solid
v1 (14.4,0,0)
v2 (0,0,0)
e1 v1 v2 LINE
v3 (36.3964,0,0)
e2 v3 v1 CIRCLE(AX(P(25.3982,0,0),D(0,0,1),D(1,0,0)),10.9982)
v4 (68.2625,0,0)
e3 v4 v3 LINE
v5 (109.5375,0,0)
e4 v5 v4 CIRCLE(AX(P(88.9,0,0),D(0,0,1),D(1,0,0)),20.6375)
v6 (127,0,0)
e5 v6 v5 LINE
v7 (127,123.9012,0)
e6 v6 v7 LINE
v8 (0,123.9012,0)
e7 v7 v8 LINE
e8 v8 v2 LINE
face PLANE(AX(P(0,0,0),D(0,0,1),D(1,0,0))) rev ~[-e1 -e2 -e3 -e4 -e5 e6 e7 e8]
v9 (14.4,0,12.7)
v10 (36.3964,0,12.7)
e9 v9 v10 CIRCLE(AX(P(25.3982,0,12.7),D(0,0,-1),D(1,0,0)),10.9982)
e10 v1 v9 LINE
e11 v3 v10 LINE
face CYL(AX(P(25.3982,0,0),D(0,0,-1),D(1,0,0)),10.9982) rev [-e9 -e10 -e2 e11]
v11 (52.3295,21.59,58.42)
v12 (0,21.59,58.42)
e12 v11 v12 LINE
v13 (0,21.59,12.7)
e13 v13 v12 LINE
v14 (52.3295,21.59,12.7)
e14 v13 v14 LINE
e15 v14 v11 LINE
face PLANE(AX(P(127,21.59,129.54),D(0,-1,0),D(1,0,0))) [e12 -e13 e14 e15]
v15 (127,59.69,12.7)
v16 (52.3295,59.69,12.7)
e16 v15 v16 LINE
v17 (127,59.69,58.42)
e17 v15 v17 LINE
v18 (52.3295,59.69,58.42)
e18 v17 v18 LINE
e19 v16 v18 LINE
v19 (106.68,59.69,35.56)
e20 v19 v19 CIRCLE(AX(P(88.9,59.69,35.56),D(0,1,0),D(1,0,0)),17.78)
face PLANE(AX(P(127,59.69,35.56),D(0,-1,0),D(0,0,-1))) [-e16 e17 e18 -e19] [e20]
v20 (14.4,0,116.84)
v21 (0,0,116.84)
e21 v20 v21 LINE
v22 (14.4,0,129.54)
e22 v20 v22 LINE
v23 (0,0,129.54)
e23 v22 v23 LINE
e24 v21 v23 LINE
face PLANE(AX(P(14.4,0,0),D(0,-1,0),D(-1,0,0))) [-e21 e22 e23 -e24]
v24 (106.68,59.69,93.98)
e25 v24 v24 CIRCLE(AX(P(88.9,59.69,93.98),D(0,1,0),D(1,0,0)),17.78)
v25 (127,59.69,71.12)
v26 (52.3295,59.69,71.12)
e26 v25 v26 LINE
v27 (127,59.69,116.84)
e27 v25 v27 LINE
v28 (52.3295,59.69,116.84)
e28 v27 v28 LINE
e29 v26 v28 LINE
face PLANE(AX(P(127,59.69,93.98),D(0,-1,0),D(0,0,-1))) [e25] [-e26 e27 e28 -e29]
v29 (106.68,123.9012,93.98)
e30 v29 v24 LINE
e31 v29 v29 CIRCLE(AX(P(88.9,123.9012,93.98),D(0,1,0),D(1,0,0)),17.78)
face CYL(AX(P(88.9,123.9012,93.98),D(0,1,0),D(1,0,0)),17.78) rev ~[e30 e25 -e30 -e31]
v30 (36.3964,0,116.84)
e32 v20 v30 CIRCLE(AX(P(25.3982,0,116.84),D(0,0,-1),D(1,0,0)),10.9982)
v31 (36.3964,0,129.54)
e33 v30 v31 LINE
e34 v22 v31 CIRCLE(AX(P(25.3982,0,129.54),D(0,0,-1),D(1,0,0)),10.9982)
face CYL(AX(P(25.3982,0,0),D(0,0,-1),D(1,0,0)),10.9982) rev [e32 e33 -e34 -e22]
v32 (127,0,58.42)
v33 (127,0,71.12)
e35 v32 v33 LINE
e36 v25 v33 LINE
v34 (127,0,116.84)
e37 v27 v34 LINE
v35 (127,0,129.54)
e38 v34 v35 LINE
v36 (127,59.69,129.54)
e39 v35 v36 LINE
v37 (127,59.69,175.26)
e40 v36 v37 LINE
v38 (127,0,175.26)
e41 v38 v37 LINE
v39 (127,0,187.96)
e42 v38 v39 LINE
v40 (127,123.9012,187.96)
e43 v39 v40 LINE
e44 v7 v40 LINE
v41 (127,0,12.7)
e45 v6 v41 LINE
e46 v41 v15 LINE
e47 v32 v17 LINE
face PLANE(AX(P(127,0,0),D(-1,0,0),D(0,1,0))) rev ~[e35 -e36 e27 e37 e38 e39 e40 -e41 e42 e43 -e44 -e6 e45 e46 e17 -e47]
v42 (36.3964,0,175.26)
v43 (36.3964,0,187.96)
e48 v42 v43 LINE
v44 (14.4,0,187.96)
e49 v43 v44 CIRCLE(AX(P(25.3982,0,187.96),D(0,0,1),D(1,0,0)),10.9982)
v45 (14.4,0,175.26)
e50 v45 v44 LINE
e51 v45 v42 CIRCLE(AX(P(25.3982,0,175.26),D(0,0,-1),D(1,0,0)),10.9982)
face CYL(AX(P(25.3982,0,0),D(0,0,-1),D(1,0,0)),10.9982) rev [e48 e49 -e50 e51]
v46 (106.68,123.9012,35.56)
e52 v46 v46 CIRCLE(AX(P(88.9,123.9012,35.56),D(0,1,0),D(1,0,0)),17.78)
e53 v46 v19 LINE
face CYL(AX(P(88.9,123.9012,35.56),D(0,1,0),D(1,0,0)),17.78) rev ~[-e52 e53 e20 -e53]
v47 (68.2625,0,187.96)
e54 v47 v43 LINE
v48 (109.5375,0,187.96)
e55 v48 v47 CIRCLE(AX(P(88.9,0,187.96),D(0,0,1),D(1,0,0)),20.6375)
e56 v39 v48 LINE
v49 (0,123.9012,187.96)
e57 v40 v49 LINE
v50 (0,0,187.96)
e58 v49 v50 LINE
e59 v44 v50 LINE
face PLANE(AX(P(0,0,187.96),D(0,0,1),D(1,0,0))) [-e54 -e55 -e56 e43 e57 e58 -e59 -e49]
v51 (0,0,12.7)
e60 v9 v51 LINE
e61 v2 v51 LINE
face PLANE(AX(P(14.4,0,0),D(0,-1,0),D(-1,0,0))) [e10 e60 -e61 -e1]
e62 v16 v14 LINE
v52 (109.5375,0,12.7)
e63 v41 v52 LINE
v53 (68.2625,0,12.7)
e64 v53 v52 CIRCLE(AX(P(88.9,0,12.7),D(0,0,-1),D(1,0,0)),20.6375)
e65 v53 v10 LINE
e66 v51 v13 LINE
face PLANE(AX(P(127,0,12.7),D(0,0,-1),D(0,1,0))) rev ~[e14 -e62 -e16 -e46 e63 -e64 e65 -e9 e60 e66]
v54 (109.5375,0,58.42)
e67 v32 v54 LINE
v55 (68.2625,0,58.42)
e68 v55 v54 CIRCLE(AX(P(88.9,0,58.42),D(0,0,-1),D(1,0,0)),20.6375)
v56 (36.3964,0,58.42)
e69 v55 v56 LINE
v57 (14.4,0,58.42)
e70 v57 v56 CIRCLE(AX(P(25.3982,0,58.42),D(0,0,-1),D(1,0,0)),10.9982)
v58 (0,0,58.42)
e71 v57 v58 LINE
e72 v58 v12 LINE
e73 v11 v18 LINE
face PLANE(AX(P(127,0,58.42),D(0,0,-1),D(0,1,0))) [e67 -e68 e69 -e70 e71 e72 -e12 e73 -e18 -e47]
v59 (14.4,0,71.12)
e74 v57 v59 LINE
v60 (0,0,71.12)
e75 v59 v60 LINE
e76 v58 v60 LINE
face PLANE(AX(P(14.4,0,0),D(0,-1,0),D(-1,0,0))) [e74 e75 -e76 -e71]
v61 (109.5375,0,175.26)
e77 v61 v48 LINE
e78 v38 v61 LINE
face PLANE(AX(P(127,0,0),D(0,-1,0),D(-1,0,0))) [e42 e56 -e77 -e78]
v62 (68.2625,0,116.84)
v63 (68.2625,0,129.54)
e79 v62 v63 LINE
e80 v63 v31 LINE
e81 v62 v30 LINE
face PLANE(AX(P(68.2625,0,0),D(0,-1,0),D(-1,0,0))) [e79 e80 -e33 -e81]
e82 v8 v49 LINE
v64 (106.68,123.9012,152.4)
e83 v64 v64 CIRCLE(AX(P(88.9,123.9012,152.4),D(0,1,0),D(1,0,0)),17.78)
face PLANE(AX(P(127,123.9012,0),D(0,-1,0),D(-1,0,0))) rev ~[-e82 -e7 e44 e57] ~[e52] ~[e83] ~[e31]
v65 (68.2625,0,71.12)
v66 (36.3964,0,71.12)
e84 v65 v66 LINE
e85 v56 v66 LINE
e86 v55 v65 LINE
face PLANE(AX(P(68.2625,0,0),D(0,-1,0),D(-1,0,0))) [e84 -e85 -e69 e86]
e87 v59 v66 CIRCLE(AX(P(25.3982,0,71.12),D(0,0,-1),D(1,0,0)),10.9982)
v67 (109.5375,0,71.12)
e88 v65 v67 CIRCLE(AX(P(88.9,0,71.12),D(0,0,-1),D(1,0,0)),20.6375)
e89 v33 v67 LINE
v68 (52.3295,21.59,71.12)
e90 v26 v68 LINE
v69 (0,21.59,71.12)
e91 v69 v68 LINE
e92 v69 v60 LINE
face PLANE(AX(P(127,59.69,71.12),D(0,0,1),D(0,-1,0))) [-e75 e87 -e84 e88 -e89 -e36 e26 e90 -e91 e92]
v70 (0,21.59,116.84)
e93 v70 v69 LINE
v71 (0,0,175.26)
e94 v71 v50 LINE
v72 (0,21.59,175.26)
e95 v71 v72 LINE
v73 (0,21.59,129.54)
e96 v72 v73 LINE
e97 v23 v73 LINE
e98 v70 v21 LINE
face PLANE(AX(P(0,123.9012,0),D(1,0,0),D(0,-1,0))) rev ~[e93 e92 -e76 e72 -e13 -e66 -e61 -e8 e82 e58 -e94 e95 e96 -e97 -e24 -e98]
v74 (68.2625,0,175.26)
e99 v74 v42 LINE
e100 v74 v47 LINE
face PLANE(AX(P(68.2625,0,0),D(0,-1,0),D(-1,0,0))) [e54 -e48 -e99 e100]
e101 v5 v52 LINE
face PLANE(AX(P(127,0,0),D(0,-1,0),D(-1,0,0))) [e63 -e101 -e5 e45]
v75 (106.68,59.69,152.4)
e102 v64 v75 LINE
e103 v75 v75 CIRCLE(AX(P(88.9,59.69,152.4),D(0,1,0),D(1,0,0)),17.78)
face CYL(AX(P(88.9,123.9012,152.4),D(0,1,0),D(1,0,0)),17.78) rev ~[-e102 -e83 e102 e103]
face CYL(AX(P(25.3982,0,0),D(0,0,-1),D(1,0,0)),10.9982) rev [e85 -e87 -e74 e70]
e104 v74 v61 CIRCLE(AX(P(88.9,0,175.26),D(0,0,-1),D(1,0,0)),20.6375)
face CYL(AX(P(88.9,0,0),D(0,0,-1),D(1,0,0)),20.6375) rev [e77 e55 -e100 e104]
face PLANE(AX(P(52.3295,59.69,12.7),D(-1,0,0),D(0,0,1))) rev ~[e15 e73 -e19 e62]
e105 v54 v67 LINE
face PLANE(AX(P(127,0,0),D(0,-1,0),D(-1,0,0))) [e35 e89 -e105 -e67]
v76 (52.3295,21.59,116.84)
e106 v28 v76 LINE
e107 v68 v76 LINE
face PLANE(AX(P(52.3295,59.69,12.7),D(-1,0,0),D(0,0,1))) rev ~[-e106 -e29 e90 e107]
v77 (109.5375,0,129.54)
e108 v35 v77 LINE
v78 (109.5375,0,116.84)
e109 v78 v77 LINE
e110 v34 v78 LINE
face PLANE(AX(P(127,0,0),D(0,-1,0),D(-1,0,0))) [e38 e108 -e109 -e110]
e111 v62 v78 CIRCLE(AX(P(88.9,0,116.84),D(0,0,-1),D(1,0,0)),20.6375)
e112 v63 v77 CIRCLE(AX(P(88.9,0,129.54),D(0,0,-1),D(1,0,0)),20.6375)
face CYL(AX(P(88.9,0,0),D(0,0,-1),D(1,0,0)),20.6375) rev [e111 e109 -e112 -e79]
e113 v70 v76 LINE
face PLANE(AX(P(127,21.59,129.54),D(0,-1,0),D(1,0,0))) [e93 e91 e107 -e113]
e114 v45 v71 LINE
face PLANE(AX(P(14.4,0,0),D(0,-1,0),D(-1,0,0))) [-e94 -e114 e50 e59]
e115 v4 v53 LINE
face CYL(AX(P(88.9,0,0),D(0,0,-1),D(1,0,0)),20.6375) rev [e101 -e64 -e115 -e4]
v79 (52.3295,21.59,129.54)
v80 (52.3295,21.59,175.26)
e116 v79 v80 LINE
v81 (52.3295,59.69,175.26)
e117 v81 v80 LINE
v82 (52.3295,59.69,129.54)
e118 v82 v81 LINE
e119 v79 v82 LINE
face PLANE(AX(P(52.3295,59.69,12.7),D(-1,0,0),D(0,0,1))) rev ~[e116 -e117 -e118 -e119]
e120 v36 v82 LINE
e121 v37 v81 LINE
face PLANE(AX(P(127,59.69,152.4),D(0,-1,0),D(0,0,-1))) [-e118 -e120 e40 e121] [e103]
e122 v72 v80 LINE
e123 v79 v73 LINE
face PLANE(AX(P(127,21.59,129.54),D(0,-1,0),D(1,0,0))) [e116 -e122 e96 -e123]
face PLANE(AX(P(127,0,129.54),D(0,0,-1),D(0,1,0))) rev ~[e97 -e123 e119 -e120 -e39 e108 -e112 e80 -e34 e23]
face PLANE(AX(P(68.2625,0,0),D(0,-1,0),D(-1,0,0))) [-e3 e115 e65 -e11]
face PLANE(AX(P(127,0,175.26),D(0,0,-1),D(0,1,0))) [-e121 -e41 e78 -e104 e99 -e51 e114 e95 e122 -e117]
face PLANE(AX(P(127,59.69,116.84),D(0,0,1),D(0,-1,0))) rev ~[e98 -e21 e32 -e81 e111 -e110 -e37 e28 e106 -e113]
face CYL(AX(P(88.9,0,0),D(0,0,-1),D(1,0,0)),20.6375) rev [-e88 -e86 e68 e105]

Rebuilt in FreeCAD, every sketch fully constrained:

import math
import FreeCAD as App
import Part
import Sketcher
Q = App.Units.Quantity


def add_polygon(sketch, points):
    """Adds a closed chain of lines whose ends are joined by coincident constraints."""
    first, n = sketch.GeometryCount, len(points)
    for a, b in zip(points, points[1:] + points[:1]):
        sketch.addGeometry(Part.LineSegment(App.Vector(*a, 0), App.Vector(*b, 0)), False)
    for i in range(n):
        sketch.addConstraint(Sketcher.Constraint("Coincident", first + i, 2, first + (i + 1) % n, 1))

doc = App.newDocument("Part")
body = doc.addObject("PartDesign::Body", "Body")

# Sketch on XY plane
sketch1 = body.newObject("Sketcher::SketchObject", "Sketch")
sketch1.AttachmentSupport = (doc.getObject("XY_Plane"), [""])
sketch1.MapMode = "FlatFace"
sketch1.addGeometry([
    Part.LineSegment(App.Vector(110, 0, 0), App.Vector(127, 0, 0)),  # 0
    Part.LineSegment(App.Vector(127, 0, 0), App.Vector(127, 124, 0)),  # 1
    Part.LineSegment(App.Vector(127, 124, 0), App.Vector(0, 124, 0)),  # 2
    Part.LineSegment(App.Vector(0, 124, 0), App.Vector(0, 0, 0)),  # 3
    Part.LineSegment(App.Vector(0, 0, 0), App.Vector(14, 0, 0)),  # 4
    Part.ArcOfCircle(Part.Circle(App.Vector(25, 0, 0), App.Vector(0, 0, 1), 11), math.radians(0), math.radians(180)),  # 5
    Part.LineSegment(App.Vector(36, 0, 0), App.Vector(68, 0, 0)),  # 6
    Part.ArcOfCircle(Part.Circle(App.Vector(89, 0, 0), App.Vector(0, 0, 1), 21), math.radians(0), math.radians(180)),  # 7
], False)
sketch1.addConstraint([
    Sketcher.Constraint("Coincident", 0, 2, 1, 1),
    Sketcher.Constraint("Coincident", 1, 2, 2, 1),
    Sketcher.Constraint("Coincident", 2, 2, 3, 1),
    Sketcher.Constraint("Coincident", 3, 2, 4, 1),
    Sketcher.Constraint("Coincident", 4, 2, 5, 2),
    Sketcher.Constraint("Coincident", 5, 1, 6, 1),
    Sketcher.Constraint("Coincident", 6, 2, 7, 2),
    Sketcher.Constraint("Coincident", 7, 1, 0, 1),
    Sketcher.Constraint("Horizontal", 0),
    Sketcher.Constraint("Vertical", 1),
    Sketcher.Constraint("Horizontal", 2),
    Sketcher.Constraint("Vertical", 3),
    Sketcher.Constraint("Horizontal", 4),
    Sketcher.Constraint("Horizontal", 6),
    Sketcher.Constraint("Coincident", 3, 2, -1, 1),
    Sketcher.Constraint("PointOnObject", 5, 3, -1),
    Sketcher.Constraint("PointOnObject", 7, 3, -1),
    Sketcher.Constraint("PointOnObject", 0, 2, -1),
    Sketcher.Constraint("PointOnObject", 5, 1, -1),
    Sketcher.Constraint("DistanceX", 2, 2, 2, 1, Q("5 in")),
    Sketcher.Constraint("Radius", 5, Q("0.433 in")),
    Sketcher.Constraint("Radius", 7, Q("0.8125 in")),
    Sketcher.Constraint("DistanceX", 7, 3, 0, 2, Q("1.5 in")),
    Sketcher.Constraint("DistanceY", 1, 1, 1, 2, Q("4.878 in")),
    Sketcher.Constraint("DistanceX", 4, 1, 4, 2, Q("14.4 mm")),
])
pad1 = body.newObject("PartDesign::Pad", "Pad")
pad1.Profile = sketch1
pad1.Length = Q("7.4 in")

# Sketch on YZ plane
sketch2 = body.newObject("Sketcher::SketchObject", "Sketch001")
sketch2.AttachmentSupport = (doc.getObject("YZ_Plane"), [""])
sketch2.MapMode = "FlatFace"
sketch2.AttachmentOffset = App.Placement(App.Vector(0, 0, 5 * 25.4), App.Rotation())
add_polygon(sketch2, [(0, 13), (60, 13), (60, 58), (0, 58)])  # lines 0-3
add_polygon(sketch2, [(0, 71), (60, 71), (60, 117), (0, 117)])  # lines 4-7
add_polygon(sketch2, [(0, 130), (60, 130), (60, 175), (0, 175)])  # lines 8-11
sketch2.addConstraint([
    Sketcher.Constraint("Horizontal", 0),
    Sketcher.Constraint("Vertical", 1),
    Sketcher.Constraint("Horizontal", 2),
    Sketcher.Constraint("Vertical", 3),
    Sketcher.Constraint("Horizontal", 4),
    Sketcher.Constraint("Vertical", 5),
    Sketcher.Constraint("Horizontal", 6),
    Sketcher.Constraint("Vertical", 7),
    Sketcher.Constraint("Horizontal", 8),
    Sketcher.Constraint("Vertical", 9),
    Sketcher.Constraint("Horizontal", 10),
    Sketcher.Constraint("Vertical", 11),
    Sketcher.Constraint("PointOnObject", 2, 2, -2),
    Sketcher.Constraint("PointOnObject", 6, 2, -2),
    Sketcher.Constraint("PointOnObject", 10, 2, -2),
    Sketcher.Constraint("Vertical", 1, 2, 4, 2),
    Sketcher.Constraint("Vertical", 5, 2, 8, 2),
    Sketcher.Constraint("Equal", 3, 5),
    Sketcher.Constraint("Equal", 7, 9),
    Sketcher.Constraint("DistanceY", -1, 1, 0, 2, Q("0.5 in")),
    Sketcher.Constraint("DistanceY", 1, 2, 4, 2, Q("0.5 in")),
    Sketcher.Constraint("DistanceY", 5, 2, 8, 2, Q("0.5 in")),
    Sketcher.Constraint("DistanceY", 1, 1, 1, 2, Q("1.8 in")),
    Sketcher.Constraint("DistanceX", 0, 1, 0, 2, Q("2.35 in")),
])
pocket1 = body.newObject("PartDesign::Pocket", "Pocket")
pocket1.Profile = sketch2
pocket1.Length = Q("7.4 in")

# Sketch on XZ plane
sketch3 = body.newObject("Sketcher::SketchObject", "Sketch002")
sketch3.AttachmentSupport = (doc.getObject("XZ_Plane"), [""])
sketch3.MapMode = "FlatFace"
sketch3.AttachmentOffset = App.Placement(App.Vector(0, 0, -4.878 * 25.4), App.Rotation())
sketch3.addGeometry([
    Part.Circle(App.Vector(89, 152, 0), App.Vector(0, 0, 1), 18),
    Part.Circle(App.Vector(89, 94, 0), App.Vector(0, 0, 1), 18),
    Part.Circle(App.Vector(89, 36, 0), App.Vector(0, 0, 1), 18),
], False)
sketch3.addConstraint([
    Sketcher.Constraint("Equal", 0, 1),
    Sketcher.Constraint("Equal", 1, 2),
    Sketcher.Constraint("Vertical", 0, 3, 1, 3),
    Sketcher.Constraint("Vertical", 1, 3, 2, 3),
    Sketcher.Constraint("Diameter", 0, Q("1.4 in")),
    Sketcher.Constraint("DistanceY", -1, 1, 2, 3, Q("1.4 in")),
    Sketcher.Constraint("DistanceY", 1, 3, 0, 3, Q("2.3 in")),
    Sketcher.Constraint("DistanceY", 2, 3, 1, 3, Q("2.3 in")),
    Sketcher.Constraint("DistanceX", -1, 1, 0, 3, Q("3.5 in")),
])
pocket2 = body.newObject("PartDesign::Pocket", "Pocket001")
pocket2.Profile = sketch3
pocket2.Length = Q("7.4 in")
pocket2.Reversed = True

# Sketch on XZ plane
sketch4 = body.newObject("Sketcher::SketchObject", "Sketch003")
sketch4.AttachmentSupport = (doc.getObject("XZ_Plane"), [""])
sketch4.MapMode = "FlatFace"
sketch4.AttachmentOffset = App.Placement(App.Vector(0, 0, -2.35 * 25.4), App.Rotation())
add_polygon(sketch4, [(0, 13), (52, 13), (52, 175), (0, 175)])  # lines 0-3
sketch4.addConstraint([
    Sketcher.Constraint("Horizontal", 0),
    Sketcher.Constraint("Vertical", 1),
    Sketcher.Constraint("Horizontal", 2),
    Sketcher.Constraint("Vertical", 3),
    Sketcher.Constraint("PointOnObject", 2, 2, -2),
    Sketcher.Constraint("DistanceY", 1, 1, 1, 2, Q("6.4 in")),
    Sketcher.Constraint("DistanceY", -1, 1, 0, 2, Q("0.5 in")),
    Sketcher.Constraint("DistanceX", 0, 1, 0, 2, Q("52.3295 mm")),
])
pad2 = body.newObject("PartDesign::Pad", "Pad001")
pad2.Profile = sketch4
pad2.Length = Q("1.5 in")

doc.recompute()
